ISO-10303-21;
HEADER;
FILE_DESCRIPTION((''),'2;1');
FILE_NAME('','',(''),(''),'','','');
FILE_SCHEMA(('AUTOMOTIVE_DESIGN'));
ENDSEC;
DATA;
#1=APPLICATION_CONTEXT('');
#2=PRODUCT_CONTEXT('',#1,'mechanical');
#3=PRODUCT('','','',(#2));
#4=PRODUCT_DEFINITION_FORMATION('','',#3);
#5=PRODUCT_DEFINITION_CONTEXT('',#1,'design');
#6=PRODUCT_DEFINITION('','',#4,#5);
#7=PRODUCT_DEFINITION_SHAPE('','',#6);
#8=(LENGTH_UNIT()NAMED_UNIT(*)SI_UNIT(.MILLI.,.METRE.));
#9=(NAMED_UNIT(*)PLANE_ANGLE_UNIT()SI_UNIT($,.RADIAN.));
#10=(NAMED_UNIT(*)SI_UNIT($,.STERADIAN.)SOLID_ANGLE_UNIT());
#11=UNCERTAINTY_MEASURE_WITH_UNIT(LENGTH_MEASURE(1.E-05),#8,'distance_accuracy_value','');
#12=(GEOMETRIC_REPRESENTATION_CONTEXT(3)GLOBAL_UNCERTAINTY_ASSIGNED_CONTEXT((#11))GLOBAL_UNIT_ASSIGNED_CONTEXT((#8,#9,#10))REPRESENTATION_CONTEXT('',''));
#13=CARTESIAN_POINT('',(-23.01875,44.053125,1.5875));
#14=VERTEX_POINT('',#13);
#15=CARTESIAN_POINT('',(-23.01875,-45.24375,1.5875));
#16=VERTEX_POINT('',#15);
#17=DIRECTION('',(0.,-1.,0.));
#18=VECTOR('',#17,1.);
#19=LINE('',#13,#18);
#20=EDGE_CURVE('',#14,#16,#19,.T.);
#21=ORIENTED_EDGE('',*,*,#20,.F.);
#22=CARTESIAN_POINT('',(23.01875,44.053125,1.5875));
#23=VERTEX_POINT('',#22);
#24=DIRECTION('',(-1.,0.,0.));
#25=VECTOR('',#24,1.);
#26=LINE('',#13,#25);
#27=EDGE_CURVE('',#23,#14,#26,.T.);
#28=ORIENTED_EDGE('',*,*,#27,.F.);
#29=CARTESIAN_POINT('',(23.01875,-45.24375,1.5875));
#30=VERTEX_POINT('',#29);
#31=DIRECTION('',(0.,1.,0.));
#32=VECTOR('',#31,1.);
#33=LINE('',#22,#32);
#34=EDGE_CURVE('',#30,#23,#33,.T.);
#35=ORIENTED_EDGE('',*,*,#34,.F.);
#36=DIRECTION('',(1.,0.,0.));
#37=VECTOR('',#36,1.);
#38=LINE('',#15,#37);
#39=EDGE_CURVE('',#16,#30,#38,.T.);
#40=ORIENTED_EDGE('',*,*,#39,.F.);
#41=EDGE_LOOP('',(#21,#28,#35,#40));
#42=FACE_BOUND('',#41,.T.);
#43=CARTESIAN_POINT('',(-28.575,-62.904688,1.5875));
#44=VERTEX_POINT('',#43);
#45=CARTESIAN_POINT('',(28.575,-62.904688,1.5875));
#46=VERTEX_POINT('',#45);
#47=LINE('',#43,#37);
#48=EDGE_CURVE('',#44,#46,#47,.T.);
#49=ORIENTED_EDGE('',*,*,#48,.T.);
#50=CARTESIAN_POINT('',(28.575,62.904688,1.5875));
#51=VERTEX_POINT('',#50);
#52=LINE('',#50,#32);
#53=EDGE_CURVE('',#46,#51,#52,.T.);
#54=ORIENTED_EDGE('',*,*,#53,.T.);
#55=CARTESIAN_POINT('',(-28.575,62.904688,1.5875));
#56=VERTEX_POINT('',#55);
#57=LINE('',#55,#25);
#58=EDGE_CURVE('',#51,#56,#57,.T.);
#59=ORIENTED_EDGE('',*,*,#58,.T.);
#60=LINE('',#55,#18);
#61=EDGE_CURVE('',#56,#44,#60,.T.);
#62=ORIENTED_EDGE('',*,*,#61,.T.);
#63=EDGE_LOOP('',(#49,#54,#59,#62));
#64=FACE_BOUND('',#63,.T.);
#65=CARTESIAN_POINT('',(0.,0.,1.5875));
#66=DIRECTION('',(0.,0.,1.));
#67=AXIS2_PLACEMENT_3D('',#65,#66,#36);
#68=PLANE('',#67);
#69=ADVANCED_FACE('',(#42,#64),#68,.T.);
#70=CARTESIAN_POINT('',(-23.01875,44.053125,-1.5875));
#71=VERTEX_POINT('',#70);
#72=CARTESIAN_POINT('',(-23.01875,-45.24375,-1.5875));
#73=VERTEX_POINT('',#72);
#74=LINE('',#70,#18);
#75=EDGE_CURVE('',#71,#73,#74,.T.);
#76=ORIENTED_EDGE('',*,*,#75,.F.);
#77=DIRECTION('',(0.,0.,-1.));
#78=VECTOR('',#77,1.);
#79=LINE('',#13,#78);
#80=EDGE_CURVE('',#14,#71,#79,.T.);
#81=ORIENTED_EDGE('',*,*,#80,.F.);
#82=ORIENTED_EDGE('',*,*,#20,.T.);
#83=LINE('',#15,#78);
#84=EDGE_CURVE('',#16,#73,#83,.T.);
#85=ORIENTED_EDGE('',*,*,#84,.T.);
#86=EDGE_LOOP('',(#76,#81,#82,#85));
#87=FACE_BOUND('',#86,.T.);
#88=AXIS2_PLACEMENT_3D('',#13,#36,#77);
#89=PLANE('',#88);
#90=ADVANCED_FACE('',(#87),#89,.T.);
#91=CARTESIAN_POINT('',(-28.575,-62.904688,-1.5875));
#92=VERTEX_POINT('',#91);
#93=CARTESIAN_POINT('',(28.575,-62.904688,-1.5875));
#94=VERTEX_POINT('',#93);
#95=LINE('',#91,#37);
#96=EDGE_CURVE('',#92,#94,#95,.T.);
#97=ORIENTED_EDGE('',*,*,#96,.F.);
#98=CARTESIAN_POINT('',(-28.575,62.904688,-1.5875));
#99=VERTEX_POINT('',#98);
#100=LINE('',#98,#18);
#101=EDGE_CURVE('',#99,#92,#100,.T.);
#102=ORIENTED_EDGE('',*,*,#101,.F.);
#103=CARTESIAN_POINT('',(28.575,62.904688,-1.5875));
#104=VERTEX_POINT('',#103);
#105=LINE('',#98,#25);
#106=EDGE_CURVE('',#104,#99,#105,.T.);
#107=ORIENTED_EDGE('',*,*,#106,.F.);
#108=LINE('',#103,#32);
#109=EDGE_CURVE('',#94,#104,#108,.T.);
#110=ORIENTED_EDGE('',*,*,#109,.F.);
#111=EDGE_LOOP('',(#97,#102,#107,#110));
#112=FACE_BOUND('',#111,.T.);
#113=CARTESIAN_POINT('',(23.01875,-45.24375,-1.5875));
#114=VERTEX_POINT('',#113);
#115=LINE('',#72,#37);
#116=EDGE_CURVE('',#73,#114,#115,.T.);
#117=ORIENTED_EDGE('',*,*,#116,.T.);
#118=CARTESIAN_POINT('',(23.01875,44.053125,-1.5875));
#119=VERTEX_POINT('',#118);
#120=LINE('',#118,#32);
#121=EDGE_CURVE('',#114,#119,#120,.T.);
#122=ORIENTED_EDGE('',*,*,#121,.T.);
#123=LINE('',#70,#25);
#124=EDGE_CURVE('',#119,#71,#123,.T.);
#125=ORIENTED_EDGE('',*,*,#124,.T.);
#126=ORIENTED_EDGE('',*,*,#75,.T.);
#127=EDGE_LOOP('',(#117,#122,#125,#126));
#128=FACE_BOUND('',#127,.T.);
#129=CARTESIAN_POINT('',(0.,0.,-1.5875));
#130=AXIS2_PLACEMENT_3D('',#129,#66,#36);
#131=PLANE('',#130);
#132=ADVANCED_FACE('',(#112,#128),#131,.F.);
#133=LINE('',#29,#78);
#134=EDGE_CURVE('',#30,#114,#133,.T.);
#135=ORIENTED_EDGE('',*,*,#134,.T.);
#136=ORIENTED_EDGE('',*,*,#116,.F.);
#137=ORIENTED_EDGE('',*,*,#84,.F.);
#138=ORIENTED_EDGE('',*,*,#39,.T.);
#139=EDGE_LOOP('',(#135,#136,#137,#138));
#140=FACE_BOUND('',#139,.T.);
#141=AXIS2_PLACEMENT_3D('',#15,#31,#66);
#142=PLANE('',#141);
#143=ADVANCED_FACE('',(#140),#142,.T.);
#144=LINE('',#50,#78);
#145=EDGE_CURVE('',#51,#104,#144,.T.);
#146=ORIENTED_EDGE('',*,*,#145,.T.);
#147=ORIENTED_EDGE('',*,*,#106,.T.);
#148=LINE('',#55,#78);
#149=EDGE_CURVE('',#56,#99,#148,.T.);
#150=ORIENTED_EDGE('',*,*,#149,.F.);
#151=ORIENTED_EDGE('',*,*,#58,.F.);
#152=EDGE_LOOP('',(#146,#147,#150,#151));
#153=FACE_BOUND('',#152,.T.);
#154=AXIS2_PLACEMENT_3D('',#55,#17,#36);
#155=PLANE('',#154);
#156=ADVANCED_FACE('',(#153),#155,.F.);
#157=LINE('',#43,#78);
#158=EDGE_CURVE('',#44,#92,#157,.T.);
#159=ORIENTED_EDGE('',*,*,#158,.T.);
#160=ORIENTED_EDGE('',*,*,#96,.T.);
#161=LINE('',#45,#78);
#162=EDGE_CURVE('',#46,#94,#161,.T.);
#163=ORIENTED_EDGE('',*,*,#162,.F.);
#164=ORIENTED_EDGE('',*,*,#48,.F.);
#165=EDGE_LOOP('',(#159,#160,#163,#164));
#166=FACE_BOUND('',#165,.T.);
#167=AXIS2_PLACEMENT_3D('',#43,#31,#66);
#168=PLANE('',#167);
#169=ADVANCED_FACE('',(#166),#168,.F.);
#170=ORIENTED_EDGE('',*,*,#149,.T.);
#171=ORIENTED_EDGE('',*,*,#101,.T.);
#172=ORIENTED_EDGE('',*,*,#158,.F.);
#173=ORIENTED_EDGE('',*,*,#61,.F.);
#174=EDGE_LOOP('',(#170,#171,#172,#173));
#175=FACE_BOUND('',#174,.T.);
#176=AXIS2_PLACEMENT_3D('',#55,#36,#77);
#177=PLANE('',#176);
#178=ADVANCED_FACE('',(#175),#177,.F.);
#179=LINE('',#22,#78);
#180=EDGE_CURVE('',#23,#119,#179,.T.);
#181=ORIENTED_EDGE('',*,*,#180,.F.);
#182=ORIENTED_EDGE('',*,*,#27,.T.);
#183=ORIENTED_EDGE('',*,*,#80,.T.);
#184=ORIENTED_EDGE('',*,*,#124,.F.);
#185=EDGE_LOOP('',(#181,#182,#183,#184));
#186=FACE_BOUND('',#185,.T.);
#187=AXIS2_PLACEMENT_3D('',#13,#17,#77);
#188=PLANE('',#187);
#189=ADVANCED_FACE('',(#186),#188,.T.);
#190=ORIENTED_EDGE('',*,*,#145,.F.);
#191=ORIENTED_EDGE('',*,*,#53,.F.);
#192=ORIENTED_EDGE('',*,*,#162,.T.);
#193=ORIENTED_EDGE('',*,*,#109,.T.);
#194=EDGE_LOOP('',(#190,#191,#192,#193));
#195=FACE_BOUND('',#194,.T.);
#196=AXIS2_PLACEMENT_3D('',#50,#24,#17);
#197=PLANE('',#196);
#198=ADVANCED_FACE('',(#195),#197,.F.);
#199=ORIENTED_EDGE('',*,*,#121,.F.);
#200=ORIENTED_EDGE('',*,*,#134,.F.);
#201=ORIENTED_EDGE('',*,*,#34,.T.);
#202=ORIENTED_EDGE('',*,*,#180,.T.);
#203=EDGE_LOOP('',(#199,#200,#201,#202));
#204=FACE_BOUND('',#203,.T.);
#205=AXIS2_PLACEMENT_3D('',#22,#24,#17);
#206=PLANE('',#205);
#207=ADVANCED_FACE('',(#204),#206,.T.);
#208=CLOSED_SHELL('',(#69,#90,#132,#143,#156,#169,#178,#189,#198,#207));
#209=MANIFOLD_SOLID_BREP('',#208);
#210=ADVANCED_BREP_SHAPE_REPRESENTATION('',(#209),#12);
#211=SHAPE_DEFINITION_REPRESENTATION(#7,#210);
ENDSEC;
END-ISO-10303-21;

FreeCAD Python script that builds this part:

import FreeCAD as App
import Part
import Sketcher
from FreeCAD import Vector
Q = App.Units.Quantity


def add_polygon(sketch, points):
    """Adds a closed chain of lines whose ends are joined by coincident constraints."""
    first, n = sketch.GeometryCount, len(points)
    for a, b in zip(points, points[1:] + points[:1]):
        sketch.addGeometry(Part.LineSegment(App.Vector(*a, 0), App.Vector(*b, 0)), False)
    for i in range(n):
        sketch.addConstraint(Sketcher.Constraint("Coincident", first + i, 2, first + (i + 1) % n, 1))

doc = App.newDocument("Part")
body = doc.addObject("PartDesign::Body", "Body")

# Sketch on XY plane
sketch1 = body.newObject("Sketcher::SketchObject", "Sketch")
sketch1.AttachmentSupport = (doc.getObject("XY_Plane"), [""])
sketch1.MapMode = "FlatFace"
add_polygon(sketch1, [(-29, 63), (-29, -63), (29, -63), (29, 63)])  # lines 0-3
add_polygon(sketch1, [(23, -45), (-23, -45), (-23, 44), (23, 44)])  # lines 4-7
sketch1.addConstraint([
    Sketcher.Constraint("Vertical", 0),
    Sketcher.Constraint("Horizontal", 1),
    Sketcher.Constraint("Vertical", 2),
    Sketcher.Constraint("Horizontal", 3),
    Sketcher.Constraint("Horizontal", 4),
    Sketcher.Constraint("Vertical", 5),
    Sketcher.Constraint("Horizontal", 6),
    Sketcher.Constraint("Vertical", 7),
    Sketcher.Constraint("Symmetric", 0, 2, 2, 2, -1, 1),
    Sketcher.Constraint("DistanceX", 1, 1, 1, 2, Q("2.25 in")),
    Sketcher.Constraint("DistanceX", 4, 2, 4, 1, Q("1.8125 in")),
    Sketcher.Constraint("DistanceY", 0, 2, 0, 1, Q("4.953125 in")),
    Sketcher.Constraint("DistanceY", 5, 1, 5, 2, Q("3.515625 in")),
    Sketcher.Constraint("DistanceX", 4, 2, -1, 1, Q("0.90625 in")),
    Sketcher.Constraint("DistanceY", 4, 2, -1, 1, Q("1.78125 in")),
])
pad1 = body.newObject("PartDesign::Pad", "Pad")
pad1.Profile = sketch1
pad1.Length = Q("0.125 in")
pad1.Midplane = True

doc.recompute()
